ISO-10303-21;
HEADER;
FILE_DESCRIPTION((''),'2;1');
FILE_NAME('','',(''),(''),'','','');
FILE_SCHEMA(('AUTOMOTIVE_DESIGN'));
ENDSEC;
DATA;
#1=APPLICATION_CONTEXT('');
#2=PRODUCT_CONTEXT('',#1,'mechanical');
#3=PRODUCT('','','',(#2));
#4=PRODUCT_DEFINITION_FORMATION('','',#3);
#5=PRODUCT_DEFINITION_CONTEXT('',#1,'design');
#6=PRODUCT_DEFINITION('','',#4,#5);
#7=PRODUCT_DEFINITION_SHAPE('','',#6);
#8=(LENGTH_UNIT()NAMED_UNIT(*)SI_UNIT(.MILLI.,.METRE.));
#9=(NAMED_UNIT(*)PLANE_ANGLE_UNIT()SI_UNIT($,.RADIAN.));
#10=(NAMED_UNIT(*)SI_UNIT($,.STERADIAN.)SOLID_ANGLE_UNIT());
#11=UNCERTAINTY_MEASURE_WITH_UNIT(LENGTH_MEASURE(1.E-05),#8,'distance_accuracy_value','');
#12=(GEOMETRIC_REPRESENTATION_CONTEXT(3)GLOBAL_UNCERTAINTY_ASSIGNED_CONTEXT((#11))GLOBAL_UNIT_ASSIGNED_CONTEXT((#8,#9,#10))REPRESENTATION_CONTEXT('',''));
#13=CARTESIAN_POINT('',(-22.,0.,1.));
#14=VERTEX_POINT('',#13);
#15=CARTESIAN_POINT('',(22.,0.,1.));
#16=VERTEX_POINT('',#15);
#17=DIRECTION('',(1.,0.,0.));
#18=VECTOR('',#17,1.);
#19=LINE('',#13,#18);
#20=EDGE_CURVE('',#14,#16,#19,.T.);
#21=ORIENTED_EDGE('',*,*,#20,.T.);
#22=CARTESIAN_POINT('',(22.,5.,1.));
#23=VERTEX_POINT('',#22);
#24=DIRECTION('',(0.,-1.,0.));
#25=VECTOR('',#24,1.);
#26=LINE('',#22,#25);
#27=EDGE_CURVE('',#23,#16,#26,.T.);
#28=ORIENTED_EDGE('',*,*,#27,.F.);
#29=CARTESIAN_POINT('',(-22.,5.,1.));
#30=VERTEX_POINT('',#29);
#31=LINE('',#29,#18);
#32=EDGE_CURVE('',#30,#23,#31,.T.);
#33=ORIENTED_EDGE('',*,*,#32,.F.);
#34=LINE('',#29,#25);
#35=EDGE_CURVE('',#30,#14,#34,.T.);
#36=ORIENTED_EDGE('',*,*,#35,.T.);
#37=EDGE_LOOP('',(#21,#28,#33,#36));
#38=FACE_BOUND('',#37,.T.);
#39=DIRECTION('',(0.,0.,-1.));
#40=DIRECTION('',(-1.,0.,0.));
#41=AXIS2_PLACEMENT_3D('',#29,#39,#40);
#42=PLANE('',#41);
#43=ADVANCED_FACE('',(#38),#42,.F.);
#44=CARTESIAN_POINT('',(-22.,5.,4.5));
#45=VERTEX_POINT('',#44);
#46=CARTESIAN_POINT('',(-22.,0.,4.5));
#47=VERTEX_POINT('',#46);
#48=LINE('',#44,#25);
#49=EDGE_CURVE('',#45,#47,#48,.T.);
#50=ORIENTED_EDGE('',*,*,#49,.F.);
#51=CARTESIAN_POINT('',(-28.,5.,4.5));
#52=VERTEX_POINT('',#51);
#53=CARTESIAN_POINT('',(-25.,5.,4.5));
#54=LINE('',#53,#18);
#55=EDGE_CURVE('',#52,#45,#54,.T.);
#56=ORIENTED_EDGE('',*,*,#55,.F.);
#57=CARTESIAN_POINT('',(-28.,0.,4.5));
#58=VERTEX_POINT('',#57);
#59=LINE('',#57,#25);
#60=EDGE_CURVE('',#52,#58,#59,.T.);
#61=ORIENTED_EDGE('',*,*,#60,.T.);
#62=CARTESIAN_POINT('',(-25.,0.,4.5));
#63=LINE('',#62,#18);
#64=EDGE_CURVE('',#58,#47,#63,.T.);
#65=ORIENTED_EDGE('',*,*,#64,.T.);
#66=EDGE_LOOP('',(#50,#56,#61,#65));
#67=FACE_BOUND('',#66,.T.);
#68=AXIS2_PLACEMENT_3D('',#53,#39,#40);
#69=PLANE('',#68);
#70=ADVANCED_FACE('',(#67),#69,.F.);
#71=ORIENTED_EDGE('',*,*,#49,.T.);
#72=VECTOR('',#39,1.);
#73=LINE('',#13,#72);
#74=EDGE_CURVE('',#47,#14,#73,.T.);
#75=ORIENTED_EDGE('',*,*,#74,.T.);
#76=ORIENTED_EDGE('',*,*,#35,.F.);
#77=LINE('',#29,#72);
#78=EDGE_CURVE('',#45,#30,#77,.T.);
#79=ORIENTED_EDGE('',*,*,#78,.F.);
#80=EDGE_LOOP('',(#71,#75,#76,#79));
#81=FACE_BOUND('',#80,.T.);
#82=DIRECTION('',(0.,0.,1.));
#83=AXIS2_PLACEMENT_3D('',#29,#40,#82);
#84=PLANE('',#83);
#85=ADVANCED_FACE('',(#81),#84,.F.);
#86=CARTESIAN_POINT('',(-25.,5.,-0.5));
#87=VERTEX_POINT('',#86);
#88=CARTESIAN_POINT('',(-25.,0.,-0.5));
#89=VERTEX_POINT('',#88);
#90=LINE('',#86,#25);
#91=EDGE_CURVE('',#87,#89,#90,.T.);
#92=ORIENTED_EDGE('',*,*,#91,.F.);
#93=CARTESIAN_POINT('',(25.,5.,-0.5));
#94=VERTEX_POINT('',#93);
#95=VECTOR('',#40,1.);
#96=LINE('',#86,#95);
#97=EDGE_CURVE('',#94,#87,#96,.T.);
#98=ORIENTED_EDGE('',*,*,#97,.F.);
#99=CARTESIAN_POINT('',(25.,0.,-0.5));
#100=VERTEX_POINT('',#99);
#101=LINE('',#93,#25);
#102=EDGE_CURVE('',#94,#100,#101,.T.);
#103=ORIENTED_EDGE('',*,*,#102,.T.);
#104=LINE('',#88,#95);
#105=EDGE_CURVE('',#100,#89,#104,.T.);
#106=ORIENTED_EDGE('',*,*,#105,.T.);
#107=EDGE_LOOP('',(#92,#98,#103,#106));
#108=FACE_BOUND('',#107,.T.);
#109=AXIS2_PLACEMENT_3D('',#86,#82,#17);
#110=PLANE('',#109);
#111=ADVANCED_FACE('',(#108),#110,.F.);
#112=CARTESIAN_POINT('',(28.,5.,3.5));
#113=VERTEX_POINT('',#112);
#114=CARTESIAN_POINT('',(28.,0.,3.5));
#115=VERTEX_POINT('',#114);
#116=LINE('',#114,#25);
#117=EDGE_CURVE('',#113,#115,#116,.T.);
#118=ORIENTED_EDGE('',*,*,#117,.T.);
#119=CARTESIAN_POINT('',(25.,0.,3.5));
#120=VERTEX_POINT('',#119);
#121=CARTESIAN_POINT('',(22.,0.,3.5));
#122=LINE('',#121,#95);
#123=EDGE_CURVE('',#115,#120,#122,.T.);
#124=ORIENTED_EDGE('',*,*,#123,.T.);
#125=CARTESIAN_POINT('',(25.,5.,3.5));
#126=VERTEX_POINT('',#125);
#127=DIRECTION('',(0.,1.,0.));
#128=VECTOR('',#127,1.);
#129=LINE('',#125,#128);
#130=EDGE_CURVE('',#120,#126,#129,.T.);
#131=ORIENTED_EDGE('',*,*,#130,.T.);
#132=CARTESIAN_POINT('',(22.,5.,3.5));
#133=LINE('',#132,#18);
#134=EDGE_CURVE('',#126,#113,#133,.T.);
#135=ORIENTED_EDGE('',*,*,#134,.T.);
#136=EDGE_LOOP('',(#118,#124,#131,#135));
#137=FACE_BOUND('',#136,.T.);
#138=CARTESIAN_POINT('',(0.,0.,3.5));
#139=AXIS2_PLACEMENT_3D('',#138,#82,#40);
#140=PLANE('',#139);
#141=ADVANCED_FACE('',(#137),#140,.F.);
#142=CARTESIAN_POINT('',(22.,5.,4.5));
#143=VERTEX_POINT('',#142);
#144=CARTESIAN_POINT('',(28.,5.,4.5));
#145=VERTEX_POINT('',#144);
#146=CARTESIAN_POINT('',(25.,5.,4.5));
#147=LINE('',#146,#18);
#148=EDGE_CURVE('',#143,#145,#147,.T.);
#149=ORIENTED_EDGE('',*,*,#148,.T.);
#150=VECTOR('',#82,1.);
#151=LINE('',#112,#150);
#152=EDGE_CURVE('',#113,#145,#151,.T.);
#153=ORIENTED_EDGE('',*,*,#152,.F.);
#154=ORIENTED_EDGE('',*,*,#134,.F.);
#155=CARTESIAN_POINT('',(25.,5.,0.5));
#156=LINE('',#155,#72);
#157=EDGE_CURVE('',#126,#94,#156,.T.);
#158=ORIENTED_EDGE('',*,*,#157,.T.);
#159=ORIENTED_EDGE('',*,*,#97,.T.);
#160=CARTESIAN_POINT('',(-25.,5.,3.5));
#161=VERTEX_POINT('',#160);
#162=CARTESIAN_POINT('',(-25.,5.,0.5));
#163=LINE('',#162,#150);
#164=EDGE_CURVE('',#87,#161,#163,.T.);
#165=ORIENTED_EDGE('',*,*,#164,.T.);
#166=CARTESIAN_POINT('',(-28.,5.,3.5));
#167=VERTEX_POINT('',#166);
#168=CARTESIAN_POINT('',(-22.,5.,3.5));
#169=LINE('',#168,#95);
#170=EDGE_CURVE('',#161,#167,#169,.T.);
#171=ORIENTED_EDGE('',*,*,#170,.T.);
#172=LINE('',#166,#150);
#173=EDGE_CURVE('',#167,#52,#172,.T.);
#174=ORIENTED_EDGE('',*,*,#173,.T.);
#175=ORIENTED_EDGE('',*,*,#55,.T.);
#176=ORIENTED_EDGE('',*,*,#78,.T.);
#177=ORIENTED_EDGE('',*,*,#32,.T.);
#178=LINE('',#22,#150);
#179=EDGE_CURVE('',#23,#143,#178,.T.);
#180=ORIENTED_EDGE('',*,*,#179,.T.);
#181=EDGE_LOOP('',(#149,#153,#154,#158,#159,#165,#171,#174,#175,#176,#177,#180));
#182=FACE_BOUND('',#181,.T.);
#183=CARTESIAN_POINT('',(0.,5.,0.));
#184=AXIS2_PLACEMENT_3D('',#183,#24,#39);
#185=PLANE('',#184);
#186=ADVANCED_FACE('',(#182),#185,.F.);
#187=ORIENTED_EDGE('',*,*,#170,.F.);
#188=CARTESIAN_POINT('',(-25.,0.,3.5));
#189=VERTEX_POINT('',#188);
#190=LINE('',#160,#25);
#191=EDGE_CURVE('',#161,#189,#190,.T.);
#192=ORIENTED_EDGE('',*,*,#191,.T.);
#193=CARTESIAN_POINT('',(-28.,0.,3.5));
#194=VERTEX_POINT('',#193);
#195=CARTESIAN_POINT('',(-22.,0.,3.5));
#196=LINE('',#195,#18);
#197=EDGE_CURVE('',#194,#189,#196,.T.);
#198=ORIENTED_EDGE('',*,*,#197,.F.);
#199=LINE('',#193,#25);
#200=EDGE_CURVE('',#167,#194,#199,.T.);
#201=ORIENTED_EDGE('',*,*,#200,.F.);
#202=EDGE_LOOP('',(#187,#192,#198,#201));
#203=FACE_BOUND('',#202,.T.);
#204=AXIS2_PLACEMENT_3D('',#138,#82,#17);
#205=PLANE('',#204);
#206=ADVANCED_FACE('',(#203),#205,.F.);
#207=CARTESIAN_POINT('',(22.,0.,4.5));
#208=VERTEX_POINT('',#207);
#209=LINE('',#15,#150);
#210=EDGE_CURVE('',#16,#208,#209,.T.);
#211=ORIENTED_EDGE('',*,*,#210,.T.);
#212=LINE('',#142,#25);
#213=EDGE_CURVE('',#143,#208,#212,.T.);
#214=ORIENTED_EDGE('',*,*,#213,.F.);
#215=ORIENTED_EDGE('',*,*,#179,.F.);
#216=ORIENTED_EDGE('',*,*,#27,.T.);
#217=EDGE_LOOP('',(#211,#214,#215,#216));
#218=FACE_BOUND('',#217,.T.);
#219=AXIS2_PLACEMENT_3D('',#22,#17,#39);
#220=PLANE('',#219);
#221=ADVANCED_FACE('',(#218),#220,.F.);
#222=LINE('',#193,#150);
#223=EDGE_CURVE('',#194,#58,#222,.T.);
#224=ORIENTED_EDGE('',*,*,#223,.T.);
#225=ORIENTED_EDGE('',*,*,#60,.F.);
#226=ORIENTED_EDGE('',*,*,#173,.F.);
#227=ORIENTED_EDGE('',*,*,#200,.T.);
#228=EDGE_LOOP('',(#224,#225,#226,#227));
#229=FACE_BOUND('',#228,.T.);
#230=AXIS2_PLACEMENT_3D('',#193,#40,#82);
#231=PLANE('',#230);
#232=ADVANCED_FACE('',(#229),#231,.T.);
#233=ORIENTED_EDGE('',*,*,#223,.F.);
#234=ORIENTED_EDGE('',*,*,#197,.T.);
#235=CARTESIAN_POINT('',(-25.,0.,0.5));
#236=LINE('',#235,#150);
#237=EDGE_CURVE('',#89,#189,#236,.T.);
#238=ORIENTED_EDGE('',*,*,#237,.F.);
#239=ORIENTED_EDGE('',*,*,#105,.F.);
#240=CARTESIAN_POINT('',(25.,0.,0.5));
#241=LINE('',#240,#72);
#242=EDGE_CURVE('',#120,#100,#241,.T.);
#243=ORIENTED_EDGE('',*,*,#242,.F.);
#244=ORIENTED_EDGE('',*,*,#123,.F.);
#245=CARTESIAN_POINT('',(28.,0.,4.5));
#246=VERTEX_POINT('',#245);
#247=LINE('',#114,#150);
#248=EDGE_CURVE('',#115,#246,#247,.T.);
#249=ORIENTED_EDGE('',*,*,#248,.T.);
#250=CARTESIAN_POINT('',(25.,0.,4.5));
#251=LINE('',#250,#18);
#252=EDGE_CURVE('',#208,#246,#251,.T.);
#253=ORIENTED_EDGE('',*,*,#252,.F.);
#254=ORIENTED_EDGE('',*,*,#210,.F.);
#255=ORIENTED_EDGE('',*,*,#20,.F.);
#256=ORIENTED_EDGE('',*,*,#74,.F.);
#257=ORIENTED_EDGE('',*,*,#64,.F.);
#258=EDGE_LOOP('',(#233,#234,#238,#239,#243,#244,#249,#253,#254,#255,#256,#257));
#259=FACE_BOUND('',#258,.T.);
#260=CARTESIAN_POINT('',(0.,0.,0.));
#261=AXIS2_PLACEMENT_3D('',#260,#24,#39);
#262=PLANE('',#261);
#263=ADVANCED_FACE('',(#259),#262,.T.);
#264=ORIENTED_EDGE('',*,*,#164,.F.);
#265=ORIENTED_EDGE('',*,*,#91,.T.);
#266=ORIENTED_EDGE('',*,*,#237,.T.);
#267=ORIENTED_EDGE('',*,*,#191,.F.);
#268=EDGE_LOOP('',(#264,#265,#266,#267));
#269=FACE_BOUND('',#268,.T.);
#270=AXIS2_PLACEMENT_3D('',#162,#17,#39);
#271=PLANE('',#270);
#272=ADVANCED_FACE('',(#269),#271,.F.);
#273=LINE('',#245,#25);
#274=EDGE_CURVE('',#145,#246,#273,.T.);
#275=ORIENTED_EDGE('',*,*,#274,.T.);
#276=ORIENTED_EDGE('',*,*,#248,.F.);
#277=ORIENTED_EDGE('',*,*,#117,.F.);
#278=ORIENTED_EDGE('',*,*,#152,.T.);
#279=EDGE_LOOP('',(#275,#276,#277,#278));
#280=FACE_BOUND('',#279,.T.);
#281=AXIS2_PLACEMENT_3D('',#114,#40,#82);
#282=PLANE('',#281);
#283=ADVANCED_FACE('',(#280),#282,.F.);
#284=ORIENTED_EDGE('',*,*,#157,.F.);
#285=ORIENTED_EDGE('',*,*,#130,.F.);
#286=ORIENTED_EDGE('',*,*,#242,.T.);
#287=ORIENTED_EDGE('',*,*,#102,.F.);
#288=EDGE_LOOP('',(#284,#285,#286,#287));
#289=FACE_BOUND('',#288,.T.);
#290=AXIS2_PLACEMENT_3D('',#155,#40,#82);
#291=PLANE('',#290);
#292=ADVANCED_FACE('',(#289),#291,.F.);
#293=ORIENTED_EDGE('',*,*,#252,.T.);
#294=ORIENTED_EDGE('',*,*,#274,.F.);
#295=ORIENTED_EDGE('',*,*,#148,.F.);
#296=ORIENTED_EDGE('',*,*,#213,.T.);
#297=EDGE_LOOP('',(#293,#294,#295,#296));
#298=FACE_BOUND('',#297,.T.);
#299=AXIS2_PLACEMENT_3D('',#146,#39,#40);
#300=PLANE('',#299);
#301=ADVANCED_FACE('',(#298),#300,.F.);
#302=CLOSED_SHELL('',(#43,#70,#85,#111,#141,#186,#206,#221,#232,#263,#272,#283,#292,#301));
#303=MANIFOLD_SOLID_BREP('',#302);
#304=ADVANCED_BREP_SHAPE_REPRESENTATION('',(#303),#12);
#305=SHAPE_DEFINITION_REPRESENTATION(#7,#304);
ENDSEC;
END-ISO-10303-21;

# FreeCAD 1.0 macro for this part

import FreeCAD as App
import Part
import Sketcher
Q = App.Units.Quantity


def add_polygon(sketch, points):
    """Adds a closed chain of lines whose ends are joined by coincident constraints."""
    first, n = sketch.GeometryCount, len(points)
    for a, b in zip(points, points[1:] + points[:1]):
        sketch.addGeometry(Part.LineSegment(App.Vector(*a, 0), App.Vector(*b, 0)), False)
    for i in range(n):
        sketch.addConstraint(Sketcher.Constraint("Coincident", first + i, 2, first + (i + 1) % n, 1))

doc = App.newDocument("Part")
body = doc.addObject("PartDesign::Body", "Body")

# Sketch on XZ plane
sketch1 = body.newObject("Sketcher::SketchObject", "Sketch")
sketch1.AttachmentSupport = (doc.getObject("XZ_Plane"), [""])
sketch1.MapMode = "FlatFace"
add_polygon(sketch1, [(-22, 1), (22, 1), (22, 4.5), (25, 4.5), (25, -0.5), (-25, -0.5), (-25, 4.5), (-22, 4.5)])  # lines 0-7
sketch1.addConstraint(Sketcher.Constraint("Horizontal", 0))
sketch1.addConstraint(Sketcher.Constraint("Vertical", 1))
sketch1.addConstraint(Sketcher.Constraint("Horizontal", 2))
sketch1.addConstraint(Sketcher.Constraint("Vertical", 3))
sketch1.addConstraint(Sketcher.Constraint("Horizontal", 4))
sketch1.addConstraint(Sketcher.Constraint("Vertical", 5))
sketch1.addConstraint(Sketcher.Constraint("Horizontal", 6))
sketch1.addConstraint(Sketcher.Constraint("Vertical", 7))
sketch1.addConstraint(Sketcher.Constraint("Symmetric", 2, 2, 5, 2, -2))
sketch1.addConstraint(Sketcher.Constraint("Equal", 2, 6))
sketch1.addConstraint(Sketcher.Constraint("DistanceX", 0, 1, 0, 2, Q("44 mm")))
sketch1.addConstraint(Sketcher.Constraint("DistanceX", 2, 1, 2, 2, Q("3 mm")))
sketch1.addConstraint(Sketcher.Constraint("DistanceY", 3, 2, 3, 1, Q("5 mm")))
sketch1.addConstraint(Sketcher.Constraint("DistanceY", 1, 1, 1, 2, Q("3.5 mm")))
sketch1.addConstraint(Sketcher.Constraint("DistanceY", -1, 1, 0, 2, Q("1 mm")))
pad1 = body.newObject("PartDesign::Pad", "Pad")
pad1.Profile = sketch1
pad1.Length = 5
pad1.Reversed = True

# Sketch on XY plane
sketch2 = body.newObject("Sketcher::SketchObject", "Sketch001")
sketch2.AttachmentSupport = (doc.getObject("XY_Plane"), [""])
sketch2.MapMode = "FlatFace"
sketch2.AttachmentOffset = App.Placement(App.Vector(0, 0, 4.5), App.Rotation())
add_polygon(sketch2, [(-28, 5), (-28, 0), (-22, 0), (-22, 5)])  # lines 0-3
sketch2.addConstraint(Sketcher.Constraint("Vertical", 0))
sketch2.addConstraint(Sketcher.Constraint("Horizontal", 1))
sketch2.addConstraint(Sketcher.Constraint("Vertical", 2))
sketch2.addConstraint(Sketcher.Constraint("Horizontal", 3))
sketch2.addConstraint(Sketcher.Constraint("PointOnObject", 0, 2, -1))
sketch2.addConstraint(Sketcher.Constraint("DistanceX", 1, 1, 1, 2, Q("6 mm")))
sketch2.addConstraint(Sketcher.Constraint("DistanceY", 0, 2, 0, 1, Q("5 mm")))
sketch2.addConstraint(Sketcher.Constraint("DistanceX", 0, 2, -1, 1, Q("28 mm")))
pad2 = body.newObject("PartDesign::Pad", "Pad001")
pad2.Profile = sketch2
pad2.Length = 1
pad2.Reversed = True
doc.recompute()

mirrored = body.newObject("PartDesign::Mirrored", "Mirrored")
mirrored.Originals = [pad2]
mirrored.MirrorPlane = (doc.getObject("YZ_Plane"), [""])
body.Tip = mirrored

doc.recompute()
